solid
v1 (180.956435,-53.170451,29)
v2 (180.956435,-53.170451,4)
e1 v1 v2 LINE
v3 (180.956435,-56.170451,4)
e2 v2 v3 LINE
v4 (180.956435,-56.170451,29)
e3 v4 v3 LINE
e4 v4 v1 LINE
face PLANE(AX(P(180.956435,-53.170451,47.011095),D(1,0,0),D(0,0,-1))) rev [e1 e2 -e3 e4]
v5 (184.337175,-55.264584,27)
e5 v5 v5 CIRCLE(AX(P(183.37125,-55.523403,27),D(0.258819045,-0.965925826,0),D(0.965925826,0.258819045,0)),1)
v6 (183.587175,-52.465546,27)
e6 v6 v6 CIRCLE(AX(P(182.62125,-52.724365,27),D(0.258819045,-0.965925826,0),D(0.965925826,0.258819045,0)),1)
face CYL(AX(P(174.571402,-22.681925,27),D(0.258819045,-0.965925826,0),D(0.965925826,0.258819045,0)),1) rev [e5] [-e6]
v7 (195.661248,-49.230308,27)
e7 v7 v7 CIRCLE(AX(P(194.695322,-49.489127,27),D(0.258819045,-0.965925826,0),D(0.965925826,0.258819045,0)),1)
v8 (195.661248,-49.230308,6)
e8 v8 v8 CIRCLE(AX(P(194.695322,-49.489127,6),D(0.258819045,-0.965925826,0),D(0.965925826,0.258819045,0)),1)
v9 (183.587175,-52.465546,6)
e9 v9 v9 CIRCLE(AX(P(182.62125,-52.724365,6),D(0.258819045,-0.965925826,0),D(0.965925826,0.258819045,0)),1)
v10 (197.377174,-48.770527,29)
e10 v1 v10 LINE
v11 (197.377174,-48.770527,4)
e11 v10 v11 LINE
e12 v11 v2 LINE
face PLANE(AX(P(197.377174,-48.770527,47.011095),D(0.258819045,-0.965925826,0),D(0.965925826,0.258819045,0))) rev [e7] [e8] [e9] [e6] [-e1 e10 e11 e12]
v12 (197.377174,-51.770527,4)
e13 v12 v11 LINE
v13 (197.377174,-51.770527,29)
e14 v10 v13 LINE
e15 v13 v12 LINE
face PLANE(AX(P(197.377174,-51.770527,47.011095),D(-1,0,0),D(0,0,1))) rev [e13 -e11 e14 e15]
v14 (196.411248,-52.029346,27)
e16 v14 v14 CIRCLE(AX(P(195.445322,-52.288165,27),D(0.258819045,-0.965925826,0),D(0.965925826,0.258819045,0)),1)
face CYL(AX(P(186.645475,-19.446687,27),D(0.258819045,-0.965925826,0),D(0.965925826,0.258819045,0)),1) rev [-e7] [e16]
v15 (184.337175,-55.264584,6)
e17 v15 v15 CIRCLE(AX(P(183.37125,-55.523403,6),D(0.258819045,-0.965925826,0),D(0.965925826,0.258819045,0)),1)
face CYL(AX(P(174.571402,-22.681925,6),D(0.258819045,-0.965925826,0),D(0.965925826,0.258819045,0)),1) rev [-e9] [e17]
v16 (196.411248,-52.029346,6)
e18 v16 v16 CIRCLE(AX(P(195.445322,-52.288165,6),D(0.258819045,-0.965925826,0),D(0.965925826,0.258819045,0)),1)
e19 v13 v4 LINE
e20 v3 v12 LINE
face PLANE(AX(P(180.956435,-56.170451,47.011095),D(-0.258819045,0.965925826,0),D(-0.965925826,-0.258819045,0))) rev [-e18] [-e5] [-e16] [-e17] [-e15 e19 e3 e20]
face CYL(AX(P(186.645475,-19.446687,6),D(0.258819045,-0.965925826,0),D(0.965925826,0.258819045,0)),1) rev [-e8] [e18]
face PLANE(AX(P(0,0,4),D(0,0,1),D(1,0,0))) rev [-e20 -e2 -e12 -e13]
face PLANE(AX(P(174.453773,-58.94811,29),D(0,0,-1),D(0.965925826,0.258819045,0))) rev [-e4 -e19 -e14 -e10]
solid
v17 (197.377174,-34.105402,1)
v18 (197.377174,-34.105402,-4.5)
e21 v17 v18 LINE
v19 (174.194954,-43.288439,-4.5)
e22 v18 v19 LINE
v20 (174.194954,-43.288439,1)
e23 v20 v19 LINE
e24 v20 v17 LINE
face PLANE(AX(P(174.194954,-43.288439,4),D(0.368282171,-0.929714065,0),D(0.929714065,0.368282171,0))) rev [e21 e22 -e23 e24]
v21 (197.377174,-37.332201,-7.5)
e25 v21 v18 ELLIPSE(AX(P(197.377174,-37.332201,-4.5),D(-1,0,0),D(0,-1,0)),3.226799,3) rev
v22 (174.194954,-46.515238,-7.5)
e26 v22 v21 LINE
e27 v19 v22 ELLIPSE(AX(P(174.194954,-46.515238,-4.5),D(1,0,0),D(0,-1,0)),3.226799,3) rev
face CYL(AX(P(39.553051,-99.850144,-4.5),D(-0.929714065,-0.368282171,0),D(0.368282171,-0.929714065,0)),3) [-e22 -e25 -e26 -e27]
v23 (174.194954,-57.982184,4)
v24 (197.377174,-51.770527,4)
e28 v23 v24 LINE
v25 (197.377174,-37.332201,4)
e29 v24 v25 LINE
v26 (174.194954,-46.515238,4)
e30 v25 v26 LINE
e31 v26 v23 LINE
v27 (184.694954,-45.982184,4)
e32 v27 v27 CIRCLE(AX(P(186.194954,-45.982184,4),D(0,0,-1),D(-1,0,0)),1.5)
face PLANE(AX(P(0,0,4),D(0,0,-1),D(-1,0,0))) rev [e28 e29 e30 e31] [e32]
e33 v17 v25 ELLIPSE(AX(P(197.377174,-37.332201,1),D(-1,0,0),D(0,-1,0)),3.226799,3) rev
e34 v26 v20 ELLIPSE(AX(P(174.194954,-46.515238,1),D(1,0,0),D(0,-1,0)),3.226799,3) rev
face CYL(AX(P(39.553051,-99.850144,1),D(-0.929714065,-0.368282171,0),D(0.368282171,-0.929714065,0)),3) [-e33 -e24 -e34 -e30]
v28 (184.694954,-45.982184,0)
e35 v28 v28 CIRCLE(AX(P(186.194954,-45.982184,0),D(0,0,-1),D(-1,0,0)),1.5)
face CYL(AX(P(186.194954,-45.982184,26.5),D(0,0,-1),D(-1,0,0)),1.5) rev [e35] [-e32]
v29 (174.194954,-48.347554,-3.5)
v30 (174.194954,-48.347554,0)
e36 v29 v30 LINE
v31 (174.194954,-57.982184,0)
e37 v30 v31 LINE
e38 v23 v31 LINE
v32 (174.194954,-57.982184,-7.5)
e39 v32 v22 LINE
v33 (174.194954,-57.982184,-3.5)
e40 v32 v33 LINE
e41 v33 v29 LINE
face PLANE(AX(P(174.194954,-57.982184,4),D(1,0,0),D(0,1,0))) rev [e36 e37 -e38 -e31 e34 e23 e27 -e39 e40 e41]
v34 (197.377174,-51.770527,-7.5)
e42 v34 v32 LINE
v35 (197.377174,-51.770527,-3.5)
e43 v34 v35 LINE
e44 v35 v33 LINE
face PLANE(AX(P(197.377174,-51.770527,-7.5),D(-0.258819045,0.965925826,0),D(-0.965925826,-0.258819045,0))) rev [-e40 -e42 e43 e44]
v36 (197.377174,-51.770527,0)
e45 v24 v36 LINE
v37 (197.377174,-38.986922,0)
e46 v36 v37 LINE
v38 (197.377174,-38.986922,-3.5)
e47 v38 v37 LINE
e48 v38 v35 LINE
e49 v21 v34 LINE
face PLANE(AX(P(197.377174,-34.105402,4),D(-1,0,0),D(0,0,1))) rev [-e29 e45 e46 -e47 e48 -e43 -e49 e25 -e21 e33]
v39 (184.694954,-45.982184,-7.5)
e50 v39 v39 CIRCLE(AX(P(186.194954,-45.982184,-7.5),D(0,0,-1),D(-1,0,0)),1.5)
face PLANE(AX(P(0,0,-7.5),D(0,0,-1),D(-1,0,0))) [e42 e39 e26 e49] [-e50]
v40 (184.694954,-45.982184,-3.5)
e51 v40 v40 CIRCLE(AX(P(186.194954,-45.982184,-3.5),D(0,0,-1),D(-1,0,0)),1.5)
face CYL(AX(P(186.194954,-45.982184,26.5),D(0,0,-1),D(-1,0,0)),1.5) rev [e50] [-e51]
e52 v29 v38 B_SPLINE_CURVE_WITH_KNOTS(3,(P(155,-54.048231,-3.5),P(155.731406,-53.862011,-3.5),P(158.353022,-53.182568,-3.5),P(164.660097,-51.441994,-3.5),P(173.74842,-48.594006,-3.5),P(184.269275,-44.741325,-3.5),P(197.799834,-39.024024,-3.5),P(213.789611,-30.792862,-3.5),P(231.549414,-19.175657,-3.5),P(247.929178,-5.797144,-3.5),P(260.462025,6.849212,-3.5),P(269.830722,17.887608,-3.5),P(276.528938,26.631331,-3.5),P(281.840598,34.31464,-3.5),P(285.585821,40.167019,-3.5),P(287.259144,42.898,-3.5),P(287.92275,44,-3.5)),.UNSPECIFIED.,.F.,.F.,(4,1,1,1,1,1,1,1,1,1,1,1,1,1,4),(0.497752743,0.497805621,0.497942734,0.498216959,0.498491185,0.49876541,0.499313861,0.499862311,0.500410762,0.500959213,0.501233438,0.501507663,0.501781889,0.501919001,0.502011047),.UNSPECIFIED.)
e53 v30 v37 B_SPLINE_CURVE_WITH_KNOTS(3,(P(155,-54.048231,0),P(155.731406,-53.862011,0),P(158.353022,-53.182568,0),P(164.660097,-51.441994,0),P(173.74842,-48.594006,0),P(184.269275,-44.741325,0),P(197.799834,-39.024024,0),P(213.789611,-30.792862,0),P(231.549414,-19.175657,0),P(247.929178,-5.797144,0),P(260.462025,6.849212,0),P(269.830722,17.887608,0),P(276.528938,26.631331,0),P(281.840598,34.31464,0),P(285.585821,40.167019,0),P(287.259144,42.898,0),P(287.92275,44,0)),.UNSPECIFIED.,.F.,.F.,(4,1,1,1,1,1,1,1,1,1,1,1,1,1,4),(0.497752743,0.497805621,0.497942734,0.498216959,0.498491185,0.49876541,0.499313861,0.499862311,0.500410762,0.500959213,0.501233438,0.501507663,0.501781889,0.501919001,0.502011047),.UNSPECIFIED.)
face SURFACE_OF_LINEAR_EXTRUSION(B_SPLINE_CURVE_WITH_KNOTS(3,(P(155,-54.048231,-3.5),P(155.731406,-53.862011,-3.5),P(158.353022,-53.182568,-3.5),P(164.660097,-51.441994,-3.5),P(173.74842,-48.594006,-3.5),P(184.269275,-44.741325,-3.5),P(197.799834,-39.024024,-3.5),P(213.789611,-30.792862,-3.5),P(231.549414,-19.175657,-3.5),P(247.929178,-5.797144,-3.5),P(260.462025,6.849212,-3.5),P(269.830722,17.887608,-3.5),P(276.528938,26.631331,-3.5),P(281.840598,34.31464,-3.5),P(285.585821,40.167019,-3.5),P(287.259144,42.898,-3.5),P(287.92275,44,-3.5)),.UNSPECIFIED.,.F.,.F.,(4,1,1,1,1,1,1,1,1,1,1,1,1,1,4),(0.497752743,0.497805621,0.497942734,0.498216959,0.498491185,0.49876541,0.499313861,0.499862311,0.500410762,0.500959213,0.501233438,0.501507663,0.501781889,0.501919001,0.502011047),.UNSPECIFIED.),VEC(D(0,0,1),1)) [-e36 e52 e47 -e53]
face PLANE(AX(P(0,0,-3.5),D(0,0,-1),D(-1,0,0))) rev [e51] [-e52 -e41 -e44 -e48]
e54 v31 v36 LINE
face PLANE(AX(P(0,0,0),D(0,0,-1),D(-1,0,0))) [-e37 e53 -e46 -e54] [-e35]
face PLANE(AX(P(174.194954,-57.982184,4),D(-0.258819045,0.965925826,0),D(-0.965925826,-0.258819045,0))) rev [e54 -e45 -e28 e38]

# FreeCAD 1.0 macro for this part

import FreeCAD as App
import Part
import Sketcher

V = App.Vector
Q = App.Units.Quantity


def edges_at(feature, points):
    """Names of the edges that pass closest to the given points."""
    edges = feature.Shape.Edges
    near = lambda p: min(range(len(edges)), key=lambda i: edges[i].distToShape(Part.Vertex(*p))[0])
    return sorted({f"Edge{near(p) + 1}" for p in points})

doc = App.newDocument("Part")
body = doc.addObject("PartDesign::Body", "Body")

# Sketch on XY plane
sketch1 = body.newObject("Sketcher::SketchObject", "Sketch")
sketch1.AttachmentSupport = (doc.getObject("XY_Plane"), [""])
sketch1.MapMode = "FlatFace"
sketch1.addGeometry(Part.LineSegment(V(174.194954, -57.982184, 0), V(197.377174, -51.770527, 0)), False)
sketch1.addGeometry(Part.LineSegment(V(197.377174, -51.770527, 0), V(197.377174, -34.105402, 0)), False)
sketch1.addGeometry(Part.LineSegment(V(197.377174, -34.105402, 0), V(174.194954, -43.288439, 0)), False)
sketch1.addGeometry(Part.LineSegment(V(174.194954, -43.288439, 0), V(174.194954, -57.982184, 0)), False)
sketch1.addConstraint(Sketcher.Constraint("Coincident", 0, 2, 1, 1))
sketch1.addConstraint(Sketcher.Constraint("Coincident", 1, 2, 2, 1))
sketch1.addConstraint(Sketcher.Constraint("Coincident", 2, 2, 3, 1))
sketch1.addConstraint(Sketcher.Constraint("Coincident", 3, 2, 0, 1))
sketch1.addConstraint(Sketcher.Constraint("Vertical", 1))
sketch1.addConstraint(Sketcher.Constraint("Vertical", 3))
sketch1.addConstraint(Sketcher.Constraint("Angle", 0, Q("15 deg")))
sketch1.addConstraint(Sketcher.Constraint("Distance", 0, 24.0))
sketch1.addConstraint(Sketcher.Constraint("DistanceY", 1, 1, 1, 2, 17.665125))
sketch1.addConstraint(Sketcher.Constraint("DistanceY", 3, 2, 3, 1, 14.693745))
sketch1.addConstraint(Sketcher.Constraint("DistanceY", 2, 2, -1, 1, 43.288439))
sketch1.addConstraint(Sketcher.Constraint("DistanceX", -1, 1, 0, 2, 197.377174))
pad1 = body.newObject("PartDesign::Pad", "Pad")
pad1.Profile = sketch1
pad1.Length = 4

# Sketch on XY plane
sketch2 = body.newObject("Sketcher::SketchObject", "Sketch001")
sketch2.AttachmentSupport = (doc.getObject("XY_Plane"), [""])
sketch2.MapMode = "FlatFace"
sketch2.addGeometry(Part.LineSegment(V(174.194954, -43.288439, 0), V(197.377174, -34.105402, 0)), False)
sketch2.addGeometry(Part.LineSegment(V(197.377174, -34.105402, 0), V(197.377174, -38.986922, 0)), False)
sketch2.addGeometry(Part.BSplineCurve([V(174.194954, -48.347554, 0), V(177.589879, -47.187067, 0), V(184.430669, -44.673129, 0), V(192.066227, -41.446744, 0), V(196.375701, -39.458357, 0), V(197.377174, -38.986922, 0)], [4, 1, 1, 4], [0.498230043, 0.498491185, 0.49876541, 0.498849046], False, 3, [1, 1, 1, 1, 1, 1], False), False)
sketch2.addGeometry(Part.LineSegment(V(174.194954, -48.347554, 0), V(174.194954, -43.288439, 0)), False)
sketch2.addConstraint(Sketcher.Constraint("Block", 2))
sketch2.addConstraint(Sketcher.Constraint("Coincident", 0, 2, 1, 1))
sketch2.addConstraint(Sketcher.Constraint("Coincident", 1, 2, 2, 2))
sketch2.addConstraint(Sketcher.Constraint("Coincident", 2, 1, 3, 1))
sketch2.addConstraint(Sketcher.Constraint("Coincident", 3, 2, 0, 1))
sketch2.addConstraint(Sketcher.Constraint("Vertical", 1))
sketch2.addConstraint(Sketcher.Constraint("Vertical", 3))
sketch2.addConstraint(Sketcher.Constraint("DistanceY", 1, 2, 1, 1, 4.881519))
sketch2.addConstraint(Sketcher.Constraint("DistanceY", 3, 1, 3, 2, 5.059115))
pad2 = body.newObject("PartDesign::Pad", "Pad001")
pad2.Profile = sketch2
pad2.Length = 3.5
pad2.Reversed = True

# Sketch on XY plane
sketch3 = body.newObject("Sketcher::SketchObject", "Sketch002")
sketch3.AttachmentSupport = (doc.getObject("XY_Plane"), [""])
sketch3.MapMode = "FlatFace"
sketch3.AttachmentOffset = App.Placement(V(0, 0, -3.5), App.Rotation())
sketch3.addGeometry(Part.LineSegment(V(174.194954, -43.288439, 0), V(197.377174, -34.105402, 0)), False)
sketch3.addGeometry(Part.LineSegment(V(197.377174, -34.105402, 0), V(197.377174, -51.770527, 0)), False)
sketch3.addGeometry(Part.LineSegment(V(197.377174, -51.770527, 0), V(174.194954, -57.982184, 0)), False)
sketch3.addGeometry(Part.LineSegment(V(174.194954, -57.982184, 0), V(174.194954, -43.288439, 0)), False)
sketch3.addConstraint(Sketcher.Constraint("Coincident", 0, 2, 1, 1))
sketch3.addConstraint(Sketcher.Constraint("Coincident", 1, 2, 2, 1))
sketch3.addConstraint(Sketcher.Constraint("Coincident", 2, 2, 3, 1))
sketch3.addConstraint(Sketcher.Constraint("Coincident", 3, 2, 0, 1))
sketch3.addConstraint(Sketcher.Constraint("Vertical", 1))
sketch3.addConstraint(Sketcher.Constraint("Vertical", 3))
sketch3.addConstraint(Sketcher.Constraint("Angle", 2, Q("-165 deg")))
sketch3.addConstraint(Sketcher.Constraint("Distance", 2, 24.0))
sketch3.addConstraint(Sketcher.Constraint("DistanceY", 1, 2, 1, 1, 17.665125))
sketch3.addConstraint(Sketcher.Constraint("DistanceY", 3, 1, 3, 2, 14.693745))
sketch3.addConstraint(Sketcher.Constraint("DistanceY", 3, 2, -1, 1, 43.288439))
sketch3.addConstraint(Sketcher.Constraint("DistanceX", -1, 1, 0, 2, 197.377174))
pad3 = body.newObject("PartDesign::Pad", "Pad002")
pad3.Profile = sketch3
pad3.Length = 4
pad3.Reversed = True

# Sketch on XY plane
sketch4 = body.newObject("Sketcher::SketchObject", "Sketch003")
sketch4.AttachmentSupport = (doc.getObject("XY_Plane"), [""])
sketch4.MapMode = "FlatFace"
sketch4.AttachmentOffset = App.Placement(V(0, 0, -7.5), App.Rotation())
sketch4.addGeometry(Part.Circle(V(186.194954, -45.982184, 0), V(0, 0, 1), 1.5), False)
sketch4.addConstraint(Sketcher.Constraint("Diameter", 0, 3.0))
sketch4.addConstraint(Sketcher.Constraint("DistanceX", -1, 1, 0, 3, 186.194954))
sketch4.addConstraint(Sketcher.Constraint("DistanceY", 0, 3, -1, 1, 45.982184))
pocket1 = body.newObject("PartDesign::Pocket", "Pocket")
pocket1.Profile = sketch4
pocket1.Length = 34
pocket1.Reversed = True
doc.recompute()

fillet = body.newObject("PartDesign::Fillet", "Fillet")
fillet.Base = (pocket1, edges_at(pocket1, [(185.786, -38.697, -7.5), (185.786, -38.697, 4)]))
fillet.Radius = 3
body2 = doc.addObject("PartDesign::Body", "Body001")

# Sketch on XY plane
sketch5 = body2.newObject("Sketcher::SketchObject", "Sketch004")
sketch5.AttachmentSupport = (doc.getObject("XY_Plane001"), [""])
sketch5.MapMode = "FlatFace"
sketch5.AttachmentOffset = App.Placement(V(0, 0, 4), App.Rotation())
sketch5.addGeometry(Part.LineSegment(V(197.377174, -51.770527, 0), V(197.377174, -48.770527, 0)), False)
sketch5.addGeometry(Part.LineSegment(V(197.377174, -48.770527, 0), V(180.956435, -53.170451, 0)), False)
sketch5.addGeometry(Part.LineSegment(V(180.956435, -53.170451, 0), V(180.956435, -56.170451, 0)), False)
sketch5.addGeometry(Part.LineSegment(V(180.956435, -56.170451, 0), V(197.377174, -51.770527, 0)), False)
sketch5.addConstraint(Sketcher.Constraint("Coincident", 0, 2, 1, 1))
sketch5.addConstraint(Sketcher.Constraint("Coincident", 1, 2, 2, 1))
sketch5.addConstraint(Sketcher.Constraint("Coincident", 2, 2, 3, 1))
sketch5.addConstraint(Sketcher.Constraint("Coincident", 3, 2, 0, 1))
sketch5.addConstraint(Sketcher.Constraint("Vertical", 0))
sketch5.addConstraint(Sketcher.Constraint("Vertical", 2))
sketch5.addConstraint(Sketcher.Constraint("Parallel", 1, 3))
sketch5.addConstraint(Sketcher.Constraint("DistanceY", 0, 1, 0, 2, 3.0))
sketch5.addConstraint(Sketcher.Constraint("Angle", 1, Q("-165 deg")))
sketch5.addConstraint(Sketcher.Constraint("Distance", 1, 17.0))
sketch5.addConstraint(Sketcher.Constraint("DistanceY", 1, 2, -1, 1, 53.170451))
sketch5.addConstraint(Sketcher.Constraint("DistanceX", -1, 1, 0, 2, 197.377174))
pad4 = body2.newObject("PartDesign::Pad", "Pad003")
pad4.Profile = sketch5
pad4.Length = 25

# Sketch on an angled plane
sketch6 = body2.newObject("Sketcher::SketchObject", "Sketch005")
sketch6.Placement = App.Placement(V(26.164395, -97.646853, 0), App.Rotation(V(0.965925826, 0.258819045, 0), V(0, 0, 0.999999999), V(0.258819045, -0.965925826, 0), "ZXY"))
sketch6.addGeometry(Part.Circle(V(162.752511, 6, 0), V(0, 0, 1), 1), False)
sketch6.addGeometry(Part.Circle(V(162.752511, 27, 0), V(0, 0, 1), 1), False)
sketch6.addGeometry(Part.Circle(V(175.252511, 6, 0), V(0, 0, 1), 1), False)
sketch6.addGeometry(Part.Circle(V(175.252511, 27, 0), V(0, 0, 1), 1), False)
sketch6.addConstraint(Sketcher.Constraint("Equal", 0, 1))
sketch6.addConstraint(Sketcher.Constraint("Equal", 1, 2))
sketch6.addConstraint(Sketcher.Constraint("Equal", 2, 3))
sketch6.addConstraint(Sketcher.Constraint("Horizontal", 0, 3, 2, 3))
sketch6.addConstraint(Sketcher.Constraint("Horizontal", 1, 3, 3, 3))
sketch6.addConstraint(Sketcher.Constraint("Vertical", 0, 3, 1, 3))
sketch6.addConstraint(Sketcher.Constraint("Vertical", 2, 3, 3, 3))
sketch6.addConstraint(Sketcher.Constraint("Diameter", 0, 2.0))
sketch6.addConstraint(Sketcher.Constraint("DistanceY", -1, 1, 0, 3, 6.0))
sketch6.addConstraint(Sketcher.Constraint("DistanceY", -1, 1, 1, 3, 27.0))
sketch6.addConstraint(Sketcher.Constraint("DistanceX", 0, 3, 2, 3, 12.5))
sketch6.addConstraint(Sketcher.Constraint("DistanceX", -1, 1, 0, 3, 162.752511))
pocket2 = body2.newObject("PartDesign::Pocket", "Pocket001")
pocket2.Profile = sketch6
pocket2.Length = 34

doc.recompute()
